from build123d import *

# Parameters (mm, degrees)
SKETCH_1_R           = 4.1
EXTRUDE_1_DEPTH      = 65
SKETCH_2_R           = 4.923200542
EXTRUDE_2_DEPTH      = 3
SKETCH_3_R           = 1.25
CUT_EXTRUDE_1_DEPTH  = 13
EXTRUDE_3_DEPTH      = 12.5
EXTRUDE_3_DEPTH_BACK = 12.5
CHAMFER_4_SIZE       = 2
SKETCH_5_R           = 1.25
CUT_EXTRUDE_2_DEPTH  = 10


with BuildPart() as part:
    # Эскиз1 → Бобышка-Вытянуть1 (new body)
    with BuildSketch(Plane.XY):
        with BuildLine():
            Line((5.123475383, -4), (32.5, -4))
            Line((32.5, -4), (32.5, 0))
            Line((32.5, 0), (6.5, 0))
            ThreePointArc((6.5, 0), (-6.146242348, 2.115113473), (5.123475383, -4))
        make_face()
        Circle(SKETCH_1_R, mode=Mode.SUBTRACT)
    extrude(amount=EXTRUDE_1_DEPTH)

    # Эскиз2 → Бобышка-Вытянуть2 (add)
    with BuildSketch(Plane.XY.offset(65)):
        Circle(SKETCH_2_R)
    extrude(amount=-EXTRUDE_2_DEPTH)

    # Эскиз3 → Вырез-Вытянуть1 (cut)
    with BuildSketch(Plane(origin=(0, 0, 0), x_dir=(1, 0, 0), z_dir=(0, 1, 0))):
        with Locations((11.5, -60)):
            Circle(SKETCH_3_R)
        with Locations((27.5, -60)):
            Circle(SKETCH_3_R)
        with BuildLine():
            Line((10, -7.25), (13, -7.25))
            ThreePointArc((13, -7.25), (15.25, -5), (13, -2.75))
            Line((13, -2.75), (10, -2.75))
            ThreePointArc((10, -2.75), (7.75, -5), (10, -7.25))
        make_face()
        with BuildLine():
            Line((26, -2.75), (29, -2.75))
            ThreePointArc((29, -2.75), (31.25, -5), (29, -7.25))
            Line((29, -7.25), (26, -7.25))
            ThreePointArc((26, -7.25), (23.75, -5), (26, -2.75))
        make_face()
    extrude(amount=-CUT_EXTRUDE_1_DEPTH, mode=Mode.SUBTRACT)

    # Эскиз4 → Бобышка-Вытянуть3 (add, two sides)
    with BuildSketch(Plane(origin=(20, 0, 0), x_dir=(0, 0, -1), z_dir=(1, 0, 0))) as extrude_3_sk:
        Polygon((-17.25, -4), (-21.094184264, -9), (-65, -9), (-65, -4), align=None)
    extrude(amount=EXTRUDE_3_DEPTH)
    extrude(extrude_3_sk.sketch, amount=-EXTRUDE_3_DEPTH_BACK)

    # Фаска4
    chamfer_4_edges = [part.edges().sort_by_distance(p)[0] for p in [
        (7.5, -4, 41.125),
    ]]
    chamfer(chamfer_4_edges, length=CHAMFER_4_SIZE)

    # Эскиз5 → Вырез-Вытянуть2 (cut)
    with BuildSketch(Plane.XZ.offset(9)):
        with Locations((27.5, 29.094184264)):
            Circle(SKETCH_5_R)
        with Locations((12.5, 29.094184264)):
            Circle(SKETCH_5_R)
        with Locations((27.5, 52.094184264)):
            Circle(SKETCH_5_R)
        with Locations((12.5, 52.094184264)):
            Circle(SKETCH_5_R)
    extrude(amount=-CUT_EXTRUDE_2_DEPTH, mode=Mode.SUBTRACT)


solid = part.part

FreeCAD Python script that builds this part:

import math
import FreeCAD as App
import Part
import Sketcher

V = App.Vector
Q = App.Units.Quantity


def edges_at(feature, points):
    """Names of the edges that pass closest to the given points."""
    edges = feature.Shape.Edges
    near = lambda p: min(range(len(edges)), key=lambda i: edges[i].distToShape(Part.Vertex(*p))[0])
    return sorted({f"Edge{near(p) + 1}" for p in points})

doc = App.newDocument("Part")
body = doc.addObject("PartDesign::Body", "Body")

sketch1 = doc.addObject("Sketcher::SketchObject", "Sketch")
body.addObject(sketch1)
sketch1.AttachmentSupport = (doc.XY_Plane, [""])
sketch1.MapMode = "FlatFace"
sketch1.addGeometry([
    Part.LineSegment(V(5.1, -4, 0), V(32.5, -4, 0)),
    Part.LineSegment(V(32.5, -4, 0), V(32.5, 0, 0)),
    Part.LineSegment(V(32.5, 0, 0), V(6.5, 0, 0)),
    Part.ArcOfCircle(Part.Circle(V(0, 0, 0), V(0, 0, 1), 6.5), math.radians(0), math.radians(322)),
    Part.Circle(V(0, 0, 0), V(0, 0, 1), 4.1),
], False)
sketch1.addConstraint([
    Sketcher.Constraint("Coincident", 0, 2, 1, 1),
    Sketcher.Constraint("Coincident", 1, 2, 2, 1),
    Sketcher.Constraint("Coincident", 2, 2, 3, 1),
    Sketcher.Constraint("Coincident", 3, 2, 0, 1),
    Sketcher.Constraint("Horizontal", 0),
    Sketcher.Constraint("Vertical", 1),
    Sketcher.Constraint("Horizontal", 2),
    Sketcher.Constraint("Coincident", 3, 3, -1, 1),
    Sketcher.Constraint("Coincident", 4, 3, -1, 1),
    Sketcher.Constraint("PointOnObject", 1, 2, -1),
    Sketcher.Constraint("Diameter", 4, Q("8.2 mm")),
    Sketcher.Constraint("Radius", 3, Q("6.5 mm")),
    Sketcher.Constraint("DistanceX", 2, 2, 2, 1, Q("26 mm")),
    Sketcher.Constraint("DistanceY", 1, 1, 1, 2, Q("4 mm")),
])
pad1 = doc.addObject("PartDesign::Pad", "Pad")
body.addObject(pad1)
pad1.Profile = sketch1
pad1.Length = 65

sketch2 = doc.addObject("Sketcher::SketchObject", "Sketch001")
body.addObject(sketch2)
sketch2.AttachmentSupport = (doc.XY_Plane, [""])
sketch2.MapMode = "FlatFace"
sketch2.AttachmentOffset = App.Placement(V(0, 0, 65), App.Rotation())
sketch2.addGeometry(Part.Circle(V(0, 0, 0), V(0, 0, 1), 4.9), False)
sketch2.addConstraint([
    Sketcher.Constraint("Coincident", 0, 3, -1, 1),
    Sketcher.Constraint("Diameter", 0, Q("9.846401 mm")),
])
pad2 = doc.addObject("PartDesign::Pad", "Pad001")
body.addObject(pad2)
pad2.Profile = sketch2
pad2.Length = 3
pad2.Reversed = True

sketch3 = doc.addObject("Sketcher::SketchObject", "Sketch002")
body.addObject(sketch3)
sketch3.AttachmentSupport = (doc.XZ_Plane, [""])
sketch3.MapMode = "FlatFace"
sketch3.addGeometry([
    Part.Circle(V(11.5, 60, 0), V(0, 0, 1), 1.2),
    Part.Circle(V(27.5, 60, 0), V(0, 0, 1), 1.2),
    Part.LineSegment(V(10, 7.2, 0), V(13, 7.2, 0)),
    Part.ArcOfCircle(Part.Circle(V(13, 5, 0), V(0, 0, 1), 2.2), math.radians(-90), math.radians(90)),
    Part.LineSegment(V(13, 2.8, 0), V(10, 2.8, 0)),
    Part.ArcOfCircle(Part.Circle(V(10, 5, 0), V(0, 0, 1), 2.2), math.radians(90), math.radians(270)),
    Part.LineSegment(V(29, 2.8, 0), V(26, 2.8, 0)),
    Part.ArcOfCircle(Part.Circle(V(26, 5, 0), V(0, 0, 1), 2.2), math.radians(90), math.radians(270)),
    Part.LineSegment(V(26, 7.2, 0), V(29, 7.2, 0)),
    Part.ArcOfCircle(Part.Circle(V(29, 5, 0), V(0, 0, 1), 2.2), math.radians(-90), math.radians(90)),
], False)
sketch3.addConstraint([
    Sketcher.Constraint("Tangent", 2, 2, 3, 2),
    Sketcher.Constraint("Tangent", 3, 1, 4, 1),
    Sketcher.Constraint("Tangent", 4, 2, 5, 2),
    Sketcher.Constraint("Tangent", 5, 1, 2, 1),
    Sketcher.Constraint("Tangent", 6, 2, 7, 2),
    Sketcher.Constraint("Tangent", 7, 1, 8, 1),
    Sketcher.Constraint("Tangent", 8, 2, 9, 2),
    Sketcher.Constraint("Tangent", 9, 1, 6, 1),
    Sketcher.Constraint("Horizontal", 2),
    Sketcher.Constraint("Horizontal", 4),
    Sketcher.Constraint("Horizontal", 6),
    Sketcher.Constraint("Horizontal", 8),
    Sketcher.Constraint("Equal", 0, 1),
    Sketcher.Constraint("Equal", 5, 7),
    Sketcher.Constraint("Horizontal", 0, 3, 1, 3),
    Sketcher.Constraint("Horizontal", 5, 3, 7, 3),
    Sketcher.Constraint("Equal", 4, 6),
    Sketcher.Constraint("Diameter", 0, Q("2.5 mm")),
    Sketcher.Constraint("DistanceX", 2, 1, 2, 2, Q("3 mm")),
    Sketcher.Constraint("Radius", 3, Q("2.25 mm")),
    Sketcher.Constraint("DistanceY", -1, 1, 0, 3, Q("60 mm")),
    Sketcher.Constraint("DistanceX", -1, 1, 3, 3, Q("13 mm")),
    Sketcher.Constraint("DistanceY", -1, 1, 3, 3, Q("5 mm")),
    Sketcher.Constraint("DistanceX", -1, 1, 7, 3, Q("26 mm")),
    Sketcher.Constraint("DistanceX", 0, 3, 1, 3, Q("16 mm")),
    Sketcher.Constraint("DistanceX", -1, 1, 0, 3, Q("11.5 mm")),
])
pocket1 = doc.addObject("PartDesign::Pocket", "Pocket")
body.addObject(pocket1)
pocket1.Profile = sketch3
pocket1.Length = 13
pocket1.Reversed = True

sketch4 = doc.addObject("Sketcher::SketchObject", "Sketch003")
body.addObject(sketch4)
sketch4.AttachmentSupport = (doc.YZ_Plane, [""])
sketch4.MapMode = "FlatFace"
sketch4.AttachmentOffset = App.Placement(V(0, 0, 20), App.Rotation())
sketch4.addGeometry([
    Part.LineSegment(V(-9, 21, 0), V(-4, 17, 0)),
    Part.LineSegment(V(-4, 17, 0), V(-4, 65, 0)),
    Part.LineSegment(V(-4, 65, 0), V(-9, 65, 0)),
    Part.LineSegment(V(-9, 65, 0), V(-9, 21, 0)),
], False)
sketch4.addConstraint([
    Sketcher.Constraint("Coincident", 0, 2, 1, 1),
    Sketcher.Constraint("Coincident", 1, 2, 2, 1),
    Sketcher.Constraint("Coincident", 2, 2, 3, 1),
    Sketcher.Constraint("Coincident", 3, 2, 0, 1),
    Sketcher.Constraint("Vertical", 1),
    Sketcher.Constraint("Horizontal", 2),
    Sketcher.Constraint("Vertical", 3),
    Sketcher.Constraint("DistanceX", 2, 2, 2, 1, Q("5 mm")),
    Sketcher.Constraint("DistanceX", 0, 2, -1, 1, Q("4 mm")),
    Sketcher.Constraint("DistanceY", -1, 1, 1, 2, Q("65 mm")),
    Sketcher.Constraint("DistanceY", 1, 1, 1, 2, Q("47.75 mm")),
    Sketcher.Constraint("Distance", 0, Q("6.306961 mm")),
])
pad3 = doc.addObject("PartDesign::Pad", "Pad002")
body.addObject(pad3)
pad3.Profile = sketch4
pad3.Type = "TwoLengths"
pad3.Length = 12.5
pad3.Length2 = 12.5
doc.recompute()

chamfer = doc.addObject("PartDesign::Chamfer", "Chamfer")
body.addObject(chamfer)
chamfer.Base = (pad3, edges_at(pad3, [(7.5, -4, 41.125)]))
chamfer.Size = 2

sketch5 = doc.addObject("Sketcher::SketchObject", "Sketch004")
body.addObject(sketch5)
sketch5.AttachmentSupport = (doc.XZ_Plane, [""])
sketch5.MapMode = "FlatFace"
sketch5.AttachmentOffset = App.Placement(V(0, 0, 9), App.Rotation())
sketch5.addGeometry([
    Part.Circle(V(27.5, 29.1, 0), V(0, 0, 1), 1.2),
    Part.Circle(V(12.5, 29.1, 0), V(0, 0, 1), 1.2),
    Part.Circle(V(27.5, 52.1, 0), V(0, 0, 1), 1.2),
    Part.Circle(V(12.5, 52.1, 0), V(0, 0, 1), 1.2),
], False)
sketch5.addConstraint([
    Sketcher.Constraint("Equal", 0, 1),
    Sketcher.Constraint("Equal", 1, 2),
    Sketcher.Constraint("Equal", 2, 3),
    Sketcher.Constraint("Horizontal", 0, 3, 1, 3),
    Sketcher.Constraint("Horizontal", 2, 3, 3, 3),
    Sketcher.Constraint("Vertical", 0, 3, 2, 3),
    Sketcher.Constraint("Vertical", 1, 3, 3, 3),
    Sketcher.Constraint("Diameter", 0, Q("2.5 mm")),
    Sketcher.Constraint("DistanceX", 1, 3, 0, 3, Q("15 mm")),
    Sketcher.Constraint("DistanceY", 0, 3, 2, 3, Q("23 mm")),
    Sketcher.Constraint("DistanceX", -1, 1, 0, 3, Q("27.5 mm")),
    Sketcher.Constraint("DistanceY", -1, 1, 0, 3, Q("29.094184 mm")),
])
pocket2 = doc.addObject("PartDesign::Pocket", "Pocket001")
body.addObject(pocket2)
pocket2.Profile = sketch5
pocket2.Length = 10

doc.recompute()
